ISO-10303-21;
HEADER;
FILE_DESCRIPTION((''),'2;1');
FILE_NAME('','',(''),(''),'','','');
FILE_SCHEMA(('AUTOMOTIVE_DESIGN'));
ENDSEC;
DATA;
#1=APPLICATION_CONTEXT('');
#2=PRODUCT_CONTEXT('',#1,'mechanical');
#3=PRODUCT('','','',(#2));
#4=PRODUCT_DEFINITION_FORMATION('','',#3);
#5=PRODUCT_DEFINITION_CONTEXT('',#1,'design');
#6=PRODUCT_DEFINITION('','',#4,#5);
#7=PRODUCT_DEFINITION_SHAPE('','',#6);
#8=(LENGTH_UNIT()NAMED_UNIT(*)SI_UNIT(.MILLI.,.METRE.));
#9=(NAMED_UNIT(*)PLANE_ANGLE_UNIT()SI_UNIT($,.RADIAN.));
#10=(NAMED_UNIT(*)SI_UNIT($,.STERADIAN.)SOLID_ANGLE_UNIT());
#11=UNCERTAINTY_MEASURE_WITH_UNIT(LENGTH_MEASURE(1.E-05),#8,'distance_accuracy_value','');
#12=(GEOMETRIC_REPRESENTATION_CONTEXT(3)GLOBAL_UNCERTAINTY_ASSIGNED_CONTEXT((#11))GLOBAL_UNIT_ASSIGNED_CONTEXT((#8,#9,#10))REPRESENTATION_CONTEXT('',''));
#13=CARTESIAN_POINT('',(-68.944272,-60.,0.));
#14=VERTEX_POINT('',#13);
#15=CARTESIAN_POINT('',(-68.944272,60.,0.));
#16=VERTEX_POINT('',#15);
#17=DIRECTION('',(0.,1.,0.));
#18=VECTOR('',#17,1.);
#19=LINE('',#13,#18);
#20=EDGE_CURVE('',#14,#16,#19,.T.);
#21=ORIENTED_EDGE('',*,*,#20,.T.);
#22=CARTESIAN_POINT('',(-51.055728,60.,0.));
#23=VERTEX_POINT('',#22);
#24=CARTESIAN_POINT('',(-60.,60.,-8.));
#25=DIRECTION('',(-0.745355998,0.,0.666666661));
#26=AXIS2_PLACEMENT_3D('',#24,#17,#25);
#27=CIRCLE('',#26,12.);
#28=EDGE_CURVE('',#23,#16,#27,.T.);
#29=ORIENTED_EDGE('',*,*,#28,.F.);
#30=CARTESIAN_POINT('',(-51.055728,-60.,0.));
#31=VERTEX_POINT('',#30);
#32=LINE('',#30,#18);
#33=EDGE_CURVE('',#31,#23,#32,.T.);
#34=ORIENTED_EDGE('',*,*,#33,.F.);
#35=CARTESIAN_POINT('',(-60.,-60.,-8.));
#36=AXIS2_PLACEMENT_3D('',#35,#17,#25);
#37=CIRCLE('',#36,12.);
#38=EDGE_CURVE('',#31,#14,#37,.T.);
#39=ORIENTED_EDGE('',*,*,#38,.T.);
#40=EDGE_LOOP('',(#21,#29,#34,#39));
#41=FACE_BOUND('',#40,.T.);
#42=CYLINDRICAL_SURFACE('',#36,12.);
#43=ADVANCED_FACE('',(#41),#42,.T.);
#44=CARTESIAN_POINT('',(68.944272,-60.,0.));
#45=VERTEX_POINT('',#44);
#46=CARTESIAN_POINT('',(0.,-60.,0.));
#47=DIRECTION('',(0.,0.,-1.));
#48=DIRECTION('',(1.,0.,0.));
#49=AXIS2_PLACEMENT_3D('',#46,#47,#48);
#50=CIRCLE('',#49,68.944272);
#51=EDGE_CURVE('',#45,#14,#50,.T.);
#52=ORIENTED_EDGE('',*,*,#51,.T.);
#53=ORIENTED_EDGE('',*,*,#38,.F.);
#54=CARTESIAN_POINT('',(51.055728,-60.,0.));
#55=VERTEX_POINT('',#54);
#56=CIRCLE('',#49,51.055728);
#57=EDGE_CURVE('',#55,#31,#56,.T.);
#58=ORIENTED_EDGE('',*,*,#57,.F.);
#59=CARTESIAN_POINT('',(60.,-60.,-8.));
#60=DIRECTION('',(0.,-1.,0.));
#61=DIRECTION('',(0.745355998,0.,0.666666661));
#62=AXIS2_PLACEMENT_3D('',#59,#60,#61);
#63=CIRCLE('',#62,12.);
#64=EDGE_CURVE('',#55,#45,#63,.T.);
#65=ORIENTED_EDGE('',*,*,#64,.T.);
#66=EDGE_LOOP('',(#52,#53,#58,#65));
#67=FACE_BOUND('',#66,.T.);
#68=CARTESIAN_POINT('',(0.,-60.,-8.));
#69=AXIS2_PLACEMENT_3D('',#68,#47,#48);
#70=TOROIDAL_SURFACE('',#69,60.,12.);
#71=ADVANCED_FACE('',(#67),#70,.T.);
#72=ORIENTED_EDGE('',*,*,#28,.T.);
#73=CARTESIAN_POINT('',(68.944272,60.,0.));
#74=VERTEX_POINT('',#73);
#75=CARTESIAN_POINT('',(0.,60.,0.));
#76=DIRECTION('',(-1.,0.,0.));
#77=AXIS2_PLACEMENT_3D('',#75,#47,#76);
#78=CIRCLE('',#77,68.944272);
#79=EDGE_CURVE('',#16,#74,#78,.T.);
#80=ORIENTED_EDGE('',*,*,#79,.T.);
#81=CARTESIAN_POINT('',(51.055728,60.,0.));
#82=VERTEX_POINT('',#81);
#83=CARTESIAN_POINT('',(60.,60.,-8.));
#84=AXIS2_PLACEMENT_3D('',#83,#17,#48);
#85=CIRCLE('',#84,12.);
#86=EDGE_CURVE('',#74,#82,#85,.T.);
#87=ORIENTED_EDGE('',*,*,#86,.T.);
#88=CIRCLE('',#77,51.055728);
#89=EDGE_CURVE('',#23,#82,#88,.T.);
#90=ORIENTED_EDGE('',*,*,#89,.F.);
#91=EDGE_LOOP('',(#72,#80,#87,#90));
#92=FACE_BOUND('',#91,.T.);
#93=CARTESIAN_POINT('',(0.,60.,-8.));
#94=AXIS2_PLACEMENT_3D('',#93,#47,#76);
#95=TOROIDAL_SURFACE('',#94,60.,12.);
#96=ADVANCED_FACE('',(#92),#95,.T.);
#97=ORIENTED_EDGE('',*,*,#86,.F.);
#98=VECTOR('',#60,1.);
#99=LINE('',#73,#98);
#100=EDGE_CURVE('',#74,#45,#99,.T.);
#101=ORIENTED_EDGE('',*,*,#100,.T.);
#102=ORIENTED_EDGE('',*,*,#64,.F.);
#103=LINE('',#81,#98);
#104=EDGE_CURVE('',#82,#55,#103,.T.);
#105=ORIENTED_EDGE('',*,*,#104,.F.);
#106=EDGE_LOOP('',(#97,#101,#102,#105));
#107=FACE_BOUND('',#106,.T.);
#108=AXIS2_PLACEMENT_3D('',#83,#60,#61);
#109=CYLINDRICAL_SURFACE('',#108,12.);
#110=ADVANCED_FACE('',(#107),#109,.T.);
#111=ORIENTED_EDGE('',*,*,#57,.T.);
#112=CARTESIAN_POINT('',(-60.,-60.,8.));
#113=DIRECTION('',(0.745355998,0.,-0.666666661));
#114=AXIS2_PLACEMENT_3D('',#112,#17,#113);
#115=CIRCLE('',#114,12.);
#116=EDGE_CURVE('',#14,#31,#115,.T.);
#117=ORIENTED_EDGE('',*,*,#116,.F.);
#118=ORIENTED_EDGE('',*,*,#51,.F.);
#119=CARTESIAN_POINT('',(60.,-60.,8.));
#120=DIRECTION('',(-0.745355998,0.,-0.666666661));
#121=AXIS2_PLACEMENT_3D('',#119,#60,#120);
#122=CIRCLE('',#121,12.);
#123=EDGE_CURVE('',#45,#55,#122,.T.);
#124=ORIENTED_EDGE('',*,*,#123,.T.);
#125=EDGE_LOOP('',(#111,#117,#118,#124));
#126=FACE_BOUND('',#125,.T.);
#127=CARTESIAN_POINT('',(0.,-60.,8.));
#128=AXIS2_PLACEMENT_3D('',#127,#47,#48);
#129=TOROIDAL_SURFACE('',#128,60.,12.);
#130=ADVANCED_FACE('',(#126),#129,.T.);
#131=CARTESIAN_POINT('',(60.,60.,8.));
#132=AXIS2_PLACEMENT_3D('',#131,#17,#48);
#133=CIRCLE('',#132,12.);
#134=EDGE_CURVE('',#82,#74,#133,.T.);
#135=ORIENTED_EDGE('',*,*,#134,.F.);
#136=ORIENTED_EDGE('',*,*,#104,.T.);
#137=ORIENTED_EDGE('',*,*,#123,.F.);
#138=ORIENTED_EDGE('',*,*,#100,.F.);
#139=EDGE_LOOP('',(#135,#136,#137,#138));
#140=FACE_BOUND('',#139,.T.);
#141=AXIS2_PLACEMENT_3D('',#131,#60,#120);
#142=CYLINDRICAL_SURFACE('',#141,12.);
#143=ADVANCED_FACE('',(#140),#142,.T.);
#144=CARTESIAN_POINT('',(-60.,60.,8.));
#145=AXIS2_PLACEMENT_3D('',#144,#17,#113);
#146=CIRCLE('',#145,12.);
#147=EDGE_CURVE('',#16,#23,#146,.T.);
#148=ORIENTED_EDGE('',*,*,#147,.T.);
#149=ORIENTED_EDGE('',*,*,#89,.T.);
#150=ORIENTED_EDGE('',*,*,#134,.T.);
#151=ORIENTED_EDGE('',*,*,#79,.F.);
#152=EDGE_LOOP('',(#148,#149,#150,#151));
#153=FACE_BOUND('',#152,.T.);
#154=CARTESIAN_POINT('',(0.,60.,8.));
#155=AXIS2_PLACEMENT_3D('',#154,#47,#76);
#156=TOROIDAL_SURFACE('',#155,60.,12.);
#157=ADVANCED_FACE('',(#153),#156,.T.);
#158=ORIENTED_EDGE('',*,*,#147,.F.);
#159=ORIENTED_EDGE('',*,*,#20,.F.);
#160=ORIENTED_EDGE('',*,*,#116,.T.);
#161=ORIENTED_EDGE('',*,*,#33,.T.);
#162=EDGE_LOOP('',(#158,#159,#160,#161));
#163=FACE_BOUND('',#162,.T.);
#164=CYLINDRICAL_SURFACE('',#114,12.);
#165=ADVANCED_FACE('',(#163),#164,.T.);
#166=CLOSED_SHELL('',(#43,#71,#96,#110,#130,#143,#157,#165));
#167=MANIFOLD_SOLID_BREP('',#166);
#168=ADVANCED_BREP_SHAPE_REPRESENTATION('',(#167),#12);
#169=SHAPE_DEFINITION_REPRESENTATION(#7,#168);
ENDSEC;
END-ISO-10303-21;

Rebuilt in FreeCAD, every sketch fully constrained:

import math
import FreeCAD as App
import Part
import Sketcher

V = App.Vector
Q = App.Units.Quantity

doc = App.newDocument("Part")
body = doc.addObject("PartDesign::Body", "Body")

sketch1 = body.newObject("Sketcher::SketchObject", "Sketch")
sketch1.AttachmentSupport = (doc.getObject("XZ_Plane"), [""])
sketch1.MapMode = "FlatFace"
sketch1.addGeometry([
    Part.ArcOfCircle(Part.Circle(V(-60, 8, 0), V(0, 0, 1), 12), math.radians(-42), math.radians(222)),
    Part.ArcOfCircle(Part.Circle(V(-60, -8, 0), V(0, 0, 1), 12), math.radians(138), math.radians(402)),
], False)
sketch1.addConstraint([
    Sketcher.Constraint("Coincident", 0, 1, 1, 2),
    Sketcher.Constraint("Coincident", 1, 1, 0, 2),
    Sketcher.Constraint("Equal", 0, 1),
    Sketcher.Constraint("Symmetric", 0, 3, 1, 3, -1),
    Sketcher.Constraint("Radius", 0, Q("12 mm")),
    Sketcher.Constraint("DistanceX", 0, 3, -1, 1, Q("60 mm")),
    Sketcher.Constraint("DistanceY", -1, 1, 0, 3, Q("8 mm")),
])

sketch2 = body.newObject("Sketcher::SketchObject", "Sketch001")
sketch2.AttachmentSupport = (doc.getObject("XY_Plane"), [""])
sketch2.MapMode = "FlatFace"
sketch2.addGeometry([
    Part.LineSegment(V(-60, -60, 0), V(-60, 60, 0)),
    Part.ArcOfCircle(Part.Circle(V(0, 60, 0), V(0, 0, 1), 60), math.radians(0), math.radians(180)),
    Part.LineSegment(V(60, 60, 0), V(60, -60, 0)),
    Part.ArcOfCircle(Part.Circle(V(0, -60, 0), V(0, 0, 1), 60), math.radians(180), math.radians(360)),
], False)
sketch2.addConstraint([
    Sketcher.Constraint("Tangent", 0, 2, 1, 2),
    Sketcher.Constraint("Tangent", 1, 1, 2, 1),
    Sketcher.Constraint("Tangent", 2, 2, 3, 2),
    Sketcher.Constraint("Tangent", 3, 1, 0, 1),
    Sketcher.Constraint("Vertical", 0),
    Sketcher.Constraint("Vertical", 2),
    Sketcher.Constraint("Symmetric", 1, 3, 3, 3, -1, 1),
    Sketcher.Constraint("Radius", 1, Q("60 mm")),
    Sketcher.Constraint("DistanceY", 0, 1, 0, 2, Q("120 mm")),
])
doc.recompute()

additivepipe = body.newObject("PartDesign::AdditivePipe", "AdditivePipe")
additivepipe.Profile = sketch1
additivepipe.Spine = (sketch2, ["Edge1", "Edge2", "Edge3", "Edge4"])

doc.recompute()
